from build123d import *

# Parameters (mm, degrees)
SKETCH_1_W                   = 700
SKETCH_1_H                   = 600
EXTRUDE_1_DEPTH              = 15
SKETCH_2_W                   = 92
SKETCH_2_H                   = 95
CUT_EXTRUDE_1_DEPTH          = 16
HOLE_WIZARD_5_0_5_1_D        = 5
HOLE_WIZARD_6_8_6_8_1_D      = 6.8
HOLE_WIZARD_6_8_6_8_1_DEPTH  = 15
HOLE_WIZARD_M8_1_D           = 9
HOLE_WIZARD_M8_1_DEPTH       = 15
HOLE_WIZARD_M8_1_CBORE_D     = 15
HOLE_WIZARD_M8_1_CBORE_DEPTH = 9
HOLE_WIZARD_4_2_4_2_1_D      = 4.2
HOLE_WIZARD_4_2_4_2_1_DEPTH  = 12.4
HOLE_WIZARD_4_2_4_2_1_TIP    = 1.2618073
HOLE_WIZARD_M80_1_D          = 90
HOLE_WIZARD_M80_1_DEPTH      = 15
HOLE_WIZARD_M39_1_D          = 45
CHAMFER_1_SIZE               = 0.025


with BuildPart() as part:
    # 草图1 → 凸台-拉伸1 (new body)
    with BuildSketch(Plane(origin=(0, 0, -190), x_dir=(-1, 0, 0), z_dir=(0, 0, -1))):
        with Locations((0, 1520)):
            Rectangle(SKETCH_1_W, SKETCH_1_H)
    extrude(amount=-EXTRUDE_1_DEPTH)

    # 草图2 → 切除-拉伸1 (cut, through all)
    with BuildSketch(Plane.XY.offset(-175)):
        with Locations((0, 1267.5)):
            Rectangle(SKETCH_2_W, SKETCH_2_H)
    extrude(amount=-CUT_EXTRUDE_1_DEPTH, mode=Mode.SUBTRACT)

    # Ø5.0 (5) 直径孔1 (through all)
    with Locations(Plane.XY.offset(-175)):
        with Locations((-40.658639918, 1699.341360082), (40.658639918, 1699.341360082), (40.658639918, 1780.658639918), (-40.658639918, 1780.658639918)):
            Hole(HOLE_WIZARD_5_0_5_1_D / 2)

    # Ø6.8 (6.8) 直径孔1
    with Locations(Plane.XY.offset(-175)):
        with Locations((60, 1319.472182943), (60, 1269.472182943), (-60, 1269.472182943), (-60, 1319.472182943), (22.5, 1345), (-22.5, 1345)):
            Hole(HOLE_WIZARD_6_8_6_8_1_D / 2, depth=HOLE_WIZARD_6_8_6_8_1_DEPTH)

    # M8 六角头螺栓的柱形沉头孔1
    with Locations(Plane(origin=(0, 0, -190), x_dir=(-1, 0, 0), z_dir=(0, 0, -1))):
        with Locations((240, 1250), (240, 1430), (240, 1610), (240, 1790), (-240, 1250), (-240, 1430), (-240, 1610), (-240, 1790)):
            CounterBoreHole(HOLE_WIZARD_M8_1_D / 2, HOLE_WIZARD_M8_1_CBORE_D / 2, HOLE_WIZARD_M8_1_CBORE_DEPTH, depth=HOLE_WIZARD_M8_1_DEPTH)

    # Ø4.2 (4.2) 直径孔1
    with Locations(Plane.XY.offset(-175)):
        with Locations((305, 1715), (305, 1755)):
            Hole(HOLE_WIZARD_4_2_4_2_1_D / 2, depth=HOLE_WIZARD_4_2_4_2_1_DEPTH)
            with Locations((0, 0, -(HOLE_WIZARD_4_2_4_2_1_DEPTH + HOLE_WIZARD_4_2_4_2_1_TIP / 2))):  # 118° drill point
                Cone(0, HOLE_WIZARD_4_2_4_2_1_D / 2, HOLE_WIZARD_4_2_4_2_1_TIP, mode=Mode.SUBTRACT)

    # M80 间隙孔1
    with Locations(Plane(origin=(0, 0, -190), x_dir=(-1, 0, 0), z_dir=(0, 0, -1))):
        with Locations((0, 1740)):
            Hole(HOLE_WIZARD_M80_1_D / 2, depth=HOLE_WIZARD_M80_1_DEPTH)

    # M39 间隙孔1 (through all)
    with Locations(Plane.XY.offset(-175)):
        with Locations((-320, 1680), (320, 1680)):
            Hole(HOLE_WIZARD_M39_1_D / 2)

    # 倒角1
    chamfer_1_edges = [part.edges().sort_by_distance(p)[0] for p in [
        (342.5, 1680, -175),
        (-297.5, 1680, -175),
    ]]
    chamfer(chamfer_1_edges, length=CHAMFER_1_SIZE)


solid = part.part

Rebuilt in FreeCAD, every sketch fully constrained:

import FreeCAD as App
import Part
import Sketcher
from FreeCAD import Vector


def edges_at(feature, points):
    """Names of the edges that pass closest to the given points."""
    edges = feature.Shape.Edges
    near = lambda p: min(range(len(edges)), key=lambda i: edges[i].distToShape(Part.Vertex(*p))[0])
    return sorted({f"Edge{near(p) + 1}" for p in points})


def add_polygon(sketch, points):
    """Adds a closed chain of lines whose ends are joined by coincident constraints."""
    first, n = sketch.GeometryCount, len(points)
    for a, b in zip(points, points[1:] + points[:1]):
        sketch.addGeometry(Part.LineSegment(App.Vector(*a, 0), App.Vector(*b, 0)), False)
    for i in range(n):
        sketch.addConstraint(Sketcher.Constraint("Coincident", first + i, 2, first + (i + 1) % n, 1))

doc = App.newDocument("Part")
params = doc.addObject("Spreadsheet::Sheet", "Params")
for row, (alias, value) in enumerate([
    ("sketch1_width", "700 mm"),
    ("sketch1_height", "600 mm"),
    ("pad1_length", "15 mm"),
    ("sketch2_width", "92 mm"),
    ("sketch2_height", "95 mm"),
    ("sketch3_diameter", "5 mm"),
    ("hole_diameter", "5 mm"),
    ("sketch4_diameter", "6.8 mm"),
    ("hole2_diameter", "6.8 mm"),
    ("hole2_depth", "15 mm"),
    ("sketch5_diameter", "9 mm"),
    ("hole3_diameter", "9 mm"),
    ("hole3_depth", "15 mm"),
    ("hole3_cbore_diameter", "15 mm"),
    ("hole3_cbore_depth", "9 mm"),
    ("sketch6_diameter", "4.2 mm"),
    ("hole4_diameter", "4.2 mm"),
    ("hole4_depth", "12.4 mm"),
    ("sketch7_diameter", "90 mm"),
    ("hole5_diameter", "90 mm"),
    ("hole5_depth", "15 mm"),
    ("sketch8_diameter", "45 mm"),
    ("hole6_diameter", "45 mm"),
    ("chamfer_size", "0.025 mm"),
], start=1):
    params.set(f"A{row}", alias)
    params.set(f"B{row}", "=" + value)
    params.setAlias(f"B{row}", alias)

body = doc.addObject("PartDesign::Body", "Body")

# Sketch on XY plane
sketch1 = body.newObject("Sketcher::SketchObject", "Sketch")
sketch1.AttachmentSupport = (doc.getObject("XY_Plane"), [""])
sketch1.MapMode = "FlatFace"
sketch1.AttachmentOffset = App.Placement(Vector(0, 0, -190), App.Rotation())
add_polygon(sketch1, [(350, 1820), (350, 1220), (-350, 1220), (-350, 1820)])  # lines 0-3
sketch1.addConstraint([
    Sketcher.Constraint("Vertical", 0),
    Sketcher.Constraint("Horizontal", 1),
    Sketcher.Constraint("Vertical", 2),
    Sketcher.Constraint("Horizontal", 3),
    Sketcher.Constraint("DistanceX", 1, 2, 1, 1, 700.0),
    Sketcher.Constraint("DistanceY", 0, 2, 0, 1, 600.0),
    Sketcher.Constraint("DistanceX", -1, 1, 0, 2, 350.0),
    Sketcher.Constraint("DistanceY", -1, 1, 0, 2, 1220.0),
])
sketch1.setExpression("Constraints[8]", "Params.sketch1_width")
sketch1.setExpression("Constraints[9]", "Params.sketch1_height")
pad1 = body.newObject("PartDesign::Pad", "Pad")
pad1.Profile = sketch1
pad1.setExpression("Length", "Params.pad1_length")

# Sketch on XY plane
sketch2 = body.newObject("Sketcher::SketchObject", "Sketch001")
sketch2.AttachmentSupport = (doc.getObject("XY_Plane"), [""])
sketch2.MapMode = "FlatFace"
sketch2.AttachmentOffset = App.Placement(Vector(0, 0, -175), App.Rotation())
add_polygon(sketch2, [(-46, 1315), (-46, 1220), (46, 1220), (46, 1315)])  # lines 0-3
sketch2.addConstraint([
    Sketcher.Constraint("Vertical", 0),
    Sketcher.Constraint("Horizontal", 1),
    Sketcher.Constraint("Vertical", 2),
    Sketcher.Constraint("Horizontal", 3),
    Sketcher.Constraint("DistanceX", 1, 1, 1, 2, 92.0),
    Sketcher.Constraint("DistanceY", 0, 2, 0, 1, 95.0),
    Sketcher.Constraint("DistanceX", 0, 2, -1, 1, 46.0),
    Sketcher.Constraint("DistanceY", -1, 1, 0, 2, 1220.0),
])
sketch2.setExpression("Constraints[8]", "Params.sketch2_width")
sketch2.setExpression("Constraints[9]", "Params.sketch2_height")
pocket1 = body.newObject("PartDesign::Pocket", "Pocket")
pocket1.Profile = sketch2
pocket1.Type = "ThroughAll"

# Sketch on XY plane
sketch3 = body.newObject("Sketcher::SketchObject", "Sketch002")
sketch3.AttachmentSupport = (doc.getObject("XY_Plane"), [""])
sketch3.MapMode = "FlatFace"
sketch3.AttachmentOffset = App.Placement(Vector(0, 0, -175), App.Rotation())
sketch3.addGeometry([
    Part.Circle(Vector(-40.7, 1699.3, 0), Vector(0, 0, 1), 2.5),
    Part.Circle(Vector(40.7, 1699.3, 0), Vector(0, 0, 1), 2.5),
    Part.Circle(Vector(40.7, 1780.7, 0), Vector(0, 0, 1), 2.5),
    Part.Circle(Vector(-40.7, 1780.7, 0), Vector(0, 0, 1), 2.5),
], False)
sketch3.addConstraint([
    Sketcher.Constraint("Equal", 0, 1),
    Sketcher.Constraint("Equal", 1, 2),
    Sketcher.Constraint("Equal", 2, 3),
    Sketcher.Constraint("Symmetric", 0, 3, 1, 3, -2),
    Sketcher.Constraint("Symmetric", 2, 3, 3, 3, -2),
    Sketcher.Constraint("Vertical", 1, 3, 2, 3),
    Sketcher.Constraint("Diameter", 0, 5.0),
    Sketcher.Constraint("DistanceX", 0, 3, -1, 1, 40.65864),
    Sketcher.Constraint("DistanceY", -1, 1, 0, 3, 1699.34136),
    Sketcher.Constraint("DistanceY", -1, 1, 2, 3, 1780.65864),
])
sketch3.setExpression("Constraints[6]", "Params.sketch3_diameter")
doc.recompute()
hole = body.newObject("PartDesign::Hole", "Hole")
hole.Profile = sketch3
hole.ThreadType = "None"
hole.setExpression("Diameter", "Params.hole_diameter")
hole.DepthType = "ThroughAll"

# Sketch on XY plane
sketch4 = body.newObject("Sketcher::SketchObject", "Sketch003")
sketch4.AttachmentSupport = (doc.getObject("XY_Plane"), [""])
sketch4.MapMode = "FlatFace"
sketch4.AttachmentOffset = App.Placement(Vector(0, 0, -175), App.Rotation())
sketch4.addGeometry([
    Part.Circle(Vector(60, 1319.5, 0), Vector(0, 0, 1), 3.4),  # 0
    Part.Circle(Vector(60, 1269.5, 0), Vector(0, 0, 1), 3.4),  # 1
    Part.Circle(Vector(-60, 1269.5, 0), Vector(0, 0, 1), 3.4),  # 2
    Part.Circle(Vector(-60, 1319.5, 0), Vector(0, 0, 1), 3.4),  # 3
    Part.Circle(Vector(22.5, 1345, 0), Vector(0, 0, 1), 3.4),  # 4
    Part.Circle(Vector(-22.5, 1345, 0), Vector(0, 0, 1), 3.4),  # 5
], False)
sketch4.addConstraint([
    Sketcher.Constraint("Equal", 0, 1),
    Sketcher.Constraint("Equal", 1, 2),
    Sketcher.Constraint("Equal", 2, 3),
    Sketcher.Constraint("Equal", 3, 4),
    Sketcher.Constraint("Equal", 4, 5),
    Sketcher.Constraint("Symmetric", 1, 3, 2, 3, -2),
    Sketcher.Constraint("Symmetric", 0, 3, 3, 3, -2),
    Sketcher.Constraint("Symmetric", 4, 3, 5, 3, -2),
    Sketcher.Constraint("Vertical", 0, 3, 1, 3),
    Sketcher.Constraint("Diameter", 0, 6.8),
    Sketcher.Constraint("DistanceX", -1, 1, 0, 3, 60.0),
    Sketcher.Constraint("DistanceY", -1, 1, 4, 3, 1345.0),
    Sketcher.Constraint("DistanceY", 1, 3, 0, 3, 50.0),
    Sketcher.Constraint("DistanceX", 5, 3, 4, 3, 45.0),
    Sketcher.Constraint("DistanceY", -1, 1, 0, 3, 1319.472183),
])
sketch4.setExpression("Constraints[9]", "Params.sketch4_diameter")
doc.recompute()
hole2 = body.newObject("PartDesign::Hole", "Hole001")
hole2.Profile = sketch4
hole2.ThreadType = "None"
hole2.setExpression("Diameter", "Params.hole2_diameter")
hole2.DepthType = "Dimension"
hole2.setExpression("Depth", "Params.hole2_depth")
hole2.DrillPoint = "Flat"

# Sketch on XY plane
sketch5 = body.newObject("Sketcher::SketchObject", "Sketch004")
sketch5.AttachmentSupport = (doc.getObject("XY_Plane"), [""])
sketch5.MapMode = "FlatFace"
sketch5.AttachmentOffset = App.Placement(Vector(0, 0, -190), App.Rotation())
sketch5.addGeometry([
    Part.Circle(Vector(-240, 1250, 0), Vector(0, 0, 1), 4.5),  # 0
    Part.Circle(Vector(-240, 1430, 0), Vector(0, 0, 1), 4.5),  # 1
    Part.Circle(Vector(-240, 1610, 0), Vector(0, 0, 1), 4.5),  # 2
    Part.Circle(Vector(-240, 1790, 0), Vector(0, 0, 1), 4.5),  # 3
    Part.Circle(Vector(240, 1250, 0), Vector(0, 0, 1), 4.5),  # 4
    Part.Circle(Vector(240, 1430, 0), Vector(0, 0, 1), 4.5),  # 5
    Part.Circle(Vector(240, 1610, 0), Vector(0, 0, 1), 4.5),  # 6
    Part.Circle(Vector(240, 1790, 0), Vector(0, 0, 1), 4.5),  # 7
], False)
sketch5.addConstraint([
    Sketcher.Constraint("Equal", 0, 1),
    Sketcher.Constraint("Equal", 1, 2),
    Sketcher.Constraint("Equal", 2, 3),
    Sketcher.Constraint("Equal", 3, 4),
    Sketcher.Constraint("Equal", 4, 5),
    Sketcher.Constraint("Equal", 5, 6),
    Sketcher.Constraint("Equal", 6, 7),
    Sketcher.Constraint("Symmetric", 0, 3, 4, 3, -2),
    Sketcher.Constraint("Symmetric", 1, 3, 5, 3, -2),
    Sketcher.Constraint("Symmetric", 2, 3, 6, 3, -2),
    Sketcher.Constraint("Symmetric", 3, 3, 7, 3, -2),
    Sketcher.Constraint("Vertical", 0, 3, 1, 3),
    Sketcher.Constraint("Vertical", 1, 3, 2, 3),
    Sketcher.Constraint("Vertical", 2, 3, 3, 3),
    Sketcher.Constraint("Diameter", 0, 9.0),
    Sketcher.Constraint("DistanceX", 0, 3, -1, 1, 240.0),
    Sketcher.Constraint("DistanceY", -1, 1, 0, 3, 1250.0),
    Sketcher.Constraint("DistanceY", -1, 1, 1, 3, 1430.0),
    Sketcher.Constraint("DistanceY", -1, 1, 2, 3, 1610.0),
    Sketcher.Constraint("DistanceY", -1, 1, 3, 3, 1790.0),
])
sketch5.setExpression("Constraints[14]", "Params.sketch5_diameter")
doc.recompute()
hole3 = body.newObject("PartDesign::Hole", "Hole002")
hole3.Profile = sketch5
hole3.ThreadType = "None"
hole3.setExpression("Diameter", "Params.hole3_diameter")
hole3.DepthType = "Dimension"
hole3.setExpression("Depth", "Params.hole3_depth")
hole3.DrillPoint = "Flat"
hole3.HoleCutType = "Counterbore"
hole3.setExpression("HoleCutDiameter", "Params.hole3_cbore_diameter")
hole3.setExpression("HoleCutDepth", "Params.hole3_cbore_depth")
hole3.Reversed = True

# Sketch on XY plane
sketch6 = body.newObject("Sketcher::SketchObject", "Sketch005")
sketch6.AttachmentSupport = (doc.getObject("XY_Plane"), [""])
sketch6.MapMode = "FlatFace"
sketch6.AttachmentOffset = App.Placement(Vector(0, 0, -175), App.Rotation())
sketch6.addGeometry([
    Part.Circle(Vector(305, 1715, 0), Vector(0, 0, 1), 2.1),
    Part.Circle(Vector(305, 1755, 0), Vector(0, 0, 1), 2.1),
], False)
sketch6.addConstraint([
    Sketcher.Constraint("Equal", 0, 1),
    Sketcher.Constraint("Vertical", 0, 3, 1, 3),
    Sketcher.Constraint("Diameter", 0, 4.2),
    Sketcher.Constraint("DistanceX", -1, 1, 0, 3, 305.0),
    Sketcher.Constraint("DistanceY", -1, 1, 0, 3, 1715.0),
    Sketcher.Constraint("DistanceY", -1, 1, 1, 3, 1755.0),
])
sketch6.setExpression("Constraints[2]", "Params.sketch6_diameter")
doc.recompute()
hole4 = body.newObject("PartDesign::Hole", "Hole003")
hole4.Profile = sketch6
hole4.ThreadType = "None"
hole4.setExpression("Diameter", "Params.hole4_diameter")
hole4.DepthType = "Dimension"
hole4.setExpression("Depth", "Params.hole4_depth")
hole4.DrillPoint = "Angled"
hole4.DrillPointAngle = 118

# Sketch on XY plane
sketch7 = body.newObject("Sketcher::SketchObject", "Sketch006")
sketch7.AttachmentSupport = (doc.getObject("XY_Plane"), [""])
sketch7.MapMode = "FlatFace"
sketch7.AttachmentOffset = App.Placement(Vector(0, 0, -190), App.Rotation())
sketch7.addGeometry(Part.Circle(Vector(0, 1740, 0), Vector(0, 0, 1), 45), False)
sketch7.addConstraint([
    Sketcher.Constraint("PointOnObject", 0, 3, -2),
    Sketcher.Constraint("Diameter", 0, 90.0),
    Sketcher.Constraint("DistanceY", -1, 1, 0, 3, 1740.0),
])
sketch7.setExpression("Constraints[1]", "Params.sketch7_diameter")
doc.recompute()
hole5 = body.newObject("PartDesign::Hole", "Hole004")
hole5.Profile = sketch7
hole5.ThreadType = "None"
hole5.setExpression("Diameter", "Params.hole5_diameter")
hole5.DepthType = "Dimension"
hole5.setExpression("Depth", "Params.hole5_depth")
hole5.DrillPoint = "Flat"
hole5.Reversed = True

# Sketch on XY plane
sketch8 = body.newObject("Sketcher::SketchObject", "Sketch007")
sketch8.AttachmentSupport = (doc.getObject("XY_Plane"), [""])
sketch8.MapMode = "FlatFace"
sketch8.AttachmentOffset = App.Placement(Vector(0, 0, -175), App.Rotation())
sketch8.addGeometry([
    Part.Circle(Vector(-320, 1680, 0), Vector(0, 0, 1), 22),
    Part.Circle(Vector(320, 1680, 0), Vector(0, 0, 1), 22),
], False)
sketch8.addConstraint([
    Sketcher.Constraint("Equal", 0, 1),
    Sketcher.Constraint("Symmetric", 0, 3, 1, 3, -2),
    Sketcher.Constraint("Diameter", 0, 45.0),
    Sketcher.Constraint("DistanceX", 0, 3, -1, 1, 320.0),
    Sketcher.Constraint("DistanceY", -1, 1, 0, 3, 1680.0),
])
sketch8.setExpression("Constraints[2]", "Params.sketch8_diameter")
doc.recompute()
hole6 = body.newObject("PartDesign::Hole", "Hole005")
hole6.Profile = sketch8
hole6.ThreadType = "None"
hole6.setExpression("Diameter", "Params.hole6_diameter")
hole6.DepthType = "ThroughAll"
doc.recompute()

chamfer = body.newObject("PartDesign::Chamfer", "Chamfer")
chamfer.Base = (hole6, edges_at(hole6, [(342.5, 1680, -175), (-297.5, 1680, -175)]))
chamfer.setExpression("Size", "Params.chamfer_size")

doc.recompute()
